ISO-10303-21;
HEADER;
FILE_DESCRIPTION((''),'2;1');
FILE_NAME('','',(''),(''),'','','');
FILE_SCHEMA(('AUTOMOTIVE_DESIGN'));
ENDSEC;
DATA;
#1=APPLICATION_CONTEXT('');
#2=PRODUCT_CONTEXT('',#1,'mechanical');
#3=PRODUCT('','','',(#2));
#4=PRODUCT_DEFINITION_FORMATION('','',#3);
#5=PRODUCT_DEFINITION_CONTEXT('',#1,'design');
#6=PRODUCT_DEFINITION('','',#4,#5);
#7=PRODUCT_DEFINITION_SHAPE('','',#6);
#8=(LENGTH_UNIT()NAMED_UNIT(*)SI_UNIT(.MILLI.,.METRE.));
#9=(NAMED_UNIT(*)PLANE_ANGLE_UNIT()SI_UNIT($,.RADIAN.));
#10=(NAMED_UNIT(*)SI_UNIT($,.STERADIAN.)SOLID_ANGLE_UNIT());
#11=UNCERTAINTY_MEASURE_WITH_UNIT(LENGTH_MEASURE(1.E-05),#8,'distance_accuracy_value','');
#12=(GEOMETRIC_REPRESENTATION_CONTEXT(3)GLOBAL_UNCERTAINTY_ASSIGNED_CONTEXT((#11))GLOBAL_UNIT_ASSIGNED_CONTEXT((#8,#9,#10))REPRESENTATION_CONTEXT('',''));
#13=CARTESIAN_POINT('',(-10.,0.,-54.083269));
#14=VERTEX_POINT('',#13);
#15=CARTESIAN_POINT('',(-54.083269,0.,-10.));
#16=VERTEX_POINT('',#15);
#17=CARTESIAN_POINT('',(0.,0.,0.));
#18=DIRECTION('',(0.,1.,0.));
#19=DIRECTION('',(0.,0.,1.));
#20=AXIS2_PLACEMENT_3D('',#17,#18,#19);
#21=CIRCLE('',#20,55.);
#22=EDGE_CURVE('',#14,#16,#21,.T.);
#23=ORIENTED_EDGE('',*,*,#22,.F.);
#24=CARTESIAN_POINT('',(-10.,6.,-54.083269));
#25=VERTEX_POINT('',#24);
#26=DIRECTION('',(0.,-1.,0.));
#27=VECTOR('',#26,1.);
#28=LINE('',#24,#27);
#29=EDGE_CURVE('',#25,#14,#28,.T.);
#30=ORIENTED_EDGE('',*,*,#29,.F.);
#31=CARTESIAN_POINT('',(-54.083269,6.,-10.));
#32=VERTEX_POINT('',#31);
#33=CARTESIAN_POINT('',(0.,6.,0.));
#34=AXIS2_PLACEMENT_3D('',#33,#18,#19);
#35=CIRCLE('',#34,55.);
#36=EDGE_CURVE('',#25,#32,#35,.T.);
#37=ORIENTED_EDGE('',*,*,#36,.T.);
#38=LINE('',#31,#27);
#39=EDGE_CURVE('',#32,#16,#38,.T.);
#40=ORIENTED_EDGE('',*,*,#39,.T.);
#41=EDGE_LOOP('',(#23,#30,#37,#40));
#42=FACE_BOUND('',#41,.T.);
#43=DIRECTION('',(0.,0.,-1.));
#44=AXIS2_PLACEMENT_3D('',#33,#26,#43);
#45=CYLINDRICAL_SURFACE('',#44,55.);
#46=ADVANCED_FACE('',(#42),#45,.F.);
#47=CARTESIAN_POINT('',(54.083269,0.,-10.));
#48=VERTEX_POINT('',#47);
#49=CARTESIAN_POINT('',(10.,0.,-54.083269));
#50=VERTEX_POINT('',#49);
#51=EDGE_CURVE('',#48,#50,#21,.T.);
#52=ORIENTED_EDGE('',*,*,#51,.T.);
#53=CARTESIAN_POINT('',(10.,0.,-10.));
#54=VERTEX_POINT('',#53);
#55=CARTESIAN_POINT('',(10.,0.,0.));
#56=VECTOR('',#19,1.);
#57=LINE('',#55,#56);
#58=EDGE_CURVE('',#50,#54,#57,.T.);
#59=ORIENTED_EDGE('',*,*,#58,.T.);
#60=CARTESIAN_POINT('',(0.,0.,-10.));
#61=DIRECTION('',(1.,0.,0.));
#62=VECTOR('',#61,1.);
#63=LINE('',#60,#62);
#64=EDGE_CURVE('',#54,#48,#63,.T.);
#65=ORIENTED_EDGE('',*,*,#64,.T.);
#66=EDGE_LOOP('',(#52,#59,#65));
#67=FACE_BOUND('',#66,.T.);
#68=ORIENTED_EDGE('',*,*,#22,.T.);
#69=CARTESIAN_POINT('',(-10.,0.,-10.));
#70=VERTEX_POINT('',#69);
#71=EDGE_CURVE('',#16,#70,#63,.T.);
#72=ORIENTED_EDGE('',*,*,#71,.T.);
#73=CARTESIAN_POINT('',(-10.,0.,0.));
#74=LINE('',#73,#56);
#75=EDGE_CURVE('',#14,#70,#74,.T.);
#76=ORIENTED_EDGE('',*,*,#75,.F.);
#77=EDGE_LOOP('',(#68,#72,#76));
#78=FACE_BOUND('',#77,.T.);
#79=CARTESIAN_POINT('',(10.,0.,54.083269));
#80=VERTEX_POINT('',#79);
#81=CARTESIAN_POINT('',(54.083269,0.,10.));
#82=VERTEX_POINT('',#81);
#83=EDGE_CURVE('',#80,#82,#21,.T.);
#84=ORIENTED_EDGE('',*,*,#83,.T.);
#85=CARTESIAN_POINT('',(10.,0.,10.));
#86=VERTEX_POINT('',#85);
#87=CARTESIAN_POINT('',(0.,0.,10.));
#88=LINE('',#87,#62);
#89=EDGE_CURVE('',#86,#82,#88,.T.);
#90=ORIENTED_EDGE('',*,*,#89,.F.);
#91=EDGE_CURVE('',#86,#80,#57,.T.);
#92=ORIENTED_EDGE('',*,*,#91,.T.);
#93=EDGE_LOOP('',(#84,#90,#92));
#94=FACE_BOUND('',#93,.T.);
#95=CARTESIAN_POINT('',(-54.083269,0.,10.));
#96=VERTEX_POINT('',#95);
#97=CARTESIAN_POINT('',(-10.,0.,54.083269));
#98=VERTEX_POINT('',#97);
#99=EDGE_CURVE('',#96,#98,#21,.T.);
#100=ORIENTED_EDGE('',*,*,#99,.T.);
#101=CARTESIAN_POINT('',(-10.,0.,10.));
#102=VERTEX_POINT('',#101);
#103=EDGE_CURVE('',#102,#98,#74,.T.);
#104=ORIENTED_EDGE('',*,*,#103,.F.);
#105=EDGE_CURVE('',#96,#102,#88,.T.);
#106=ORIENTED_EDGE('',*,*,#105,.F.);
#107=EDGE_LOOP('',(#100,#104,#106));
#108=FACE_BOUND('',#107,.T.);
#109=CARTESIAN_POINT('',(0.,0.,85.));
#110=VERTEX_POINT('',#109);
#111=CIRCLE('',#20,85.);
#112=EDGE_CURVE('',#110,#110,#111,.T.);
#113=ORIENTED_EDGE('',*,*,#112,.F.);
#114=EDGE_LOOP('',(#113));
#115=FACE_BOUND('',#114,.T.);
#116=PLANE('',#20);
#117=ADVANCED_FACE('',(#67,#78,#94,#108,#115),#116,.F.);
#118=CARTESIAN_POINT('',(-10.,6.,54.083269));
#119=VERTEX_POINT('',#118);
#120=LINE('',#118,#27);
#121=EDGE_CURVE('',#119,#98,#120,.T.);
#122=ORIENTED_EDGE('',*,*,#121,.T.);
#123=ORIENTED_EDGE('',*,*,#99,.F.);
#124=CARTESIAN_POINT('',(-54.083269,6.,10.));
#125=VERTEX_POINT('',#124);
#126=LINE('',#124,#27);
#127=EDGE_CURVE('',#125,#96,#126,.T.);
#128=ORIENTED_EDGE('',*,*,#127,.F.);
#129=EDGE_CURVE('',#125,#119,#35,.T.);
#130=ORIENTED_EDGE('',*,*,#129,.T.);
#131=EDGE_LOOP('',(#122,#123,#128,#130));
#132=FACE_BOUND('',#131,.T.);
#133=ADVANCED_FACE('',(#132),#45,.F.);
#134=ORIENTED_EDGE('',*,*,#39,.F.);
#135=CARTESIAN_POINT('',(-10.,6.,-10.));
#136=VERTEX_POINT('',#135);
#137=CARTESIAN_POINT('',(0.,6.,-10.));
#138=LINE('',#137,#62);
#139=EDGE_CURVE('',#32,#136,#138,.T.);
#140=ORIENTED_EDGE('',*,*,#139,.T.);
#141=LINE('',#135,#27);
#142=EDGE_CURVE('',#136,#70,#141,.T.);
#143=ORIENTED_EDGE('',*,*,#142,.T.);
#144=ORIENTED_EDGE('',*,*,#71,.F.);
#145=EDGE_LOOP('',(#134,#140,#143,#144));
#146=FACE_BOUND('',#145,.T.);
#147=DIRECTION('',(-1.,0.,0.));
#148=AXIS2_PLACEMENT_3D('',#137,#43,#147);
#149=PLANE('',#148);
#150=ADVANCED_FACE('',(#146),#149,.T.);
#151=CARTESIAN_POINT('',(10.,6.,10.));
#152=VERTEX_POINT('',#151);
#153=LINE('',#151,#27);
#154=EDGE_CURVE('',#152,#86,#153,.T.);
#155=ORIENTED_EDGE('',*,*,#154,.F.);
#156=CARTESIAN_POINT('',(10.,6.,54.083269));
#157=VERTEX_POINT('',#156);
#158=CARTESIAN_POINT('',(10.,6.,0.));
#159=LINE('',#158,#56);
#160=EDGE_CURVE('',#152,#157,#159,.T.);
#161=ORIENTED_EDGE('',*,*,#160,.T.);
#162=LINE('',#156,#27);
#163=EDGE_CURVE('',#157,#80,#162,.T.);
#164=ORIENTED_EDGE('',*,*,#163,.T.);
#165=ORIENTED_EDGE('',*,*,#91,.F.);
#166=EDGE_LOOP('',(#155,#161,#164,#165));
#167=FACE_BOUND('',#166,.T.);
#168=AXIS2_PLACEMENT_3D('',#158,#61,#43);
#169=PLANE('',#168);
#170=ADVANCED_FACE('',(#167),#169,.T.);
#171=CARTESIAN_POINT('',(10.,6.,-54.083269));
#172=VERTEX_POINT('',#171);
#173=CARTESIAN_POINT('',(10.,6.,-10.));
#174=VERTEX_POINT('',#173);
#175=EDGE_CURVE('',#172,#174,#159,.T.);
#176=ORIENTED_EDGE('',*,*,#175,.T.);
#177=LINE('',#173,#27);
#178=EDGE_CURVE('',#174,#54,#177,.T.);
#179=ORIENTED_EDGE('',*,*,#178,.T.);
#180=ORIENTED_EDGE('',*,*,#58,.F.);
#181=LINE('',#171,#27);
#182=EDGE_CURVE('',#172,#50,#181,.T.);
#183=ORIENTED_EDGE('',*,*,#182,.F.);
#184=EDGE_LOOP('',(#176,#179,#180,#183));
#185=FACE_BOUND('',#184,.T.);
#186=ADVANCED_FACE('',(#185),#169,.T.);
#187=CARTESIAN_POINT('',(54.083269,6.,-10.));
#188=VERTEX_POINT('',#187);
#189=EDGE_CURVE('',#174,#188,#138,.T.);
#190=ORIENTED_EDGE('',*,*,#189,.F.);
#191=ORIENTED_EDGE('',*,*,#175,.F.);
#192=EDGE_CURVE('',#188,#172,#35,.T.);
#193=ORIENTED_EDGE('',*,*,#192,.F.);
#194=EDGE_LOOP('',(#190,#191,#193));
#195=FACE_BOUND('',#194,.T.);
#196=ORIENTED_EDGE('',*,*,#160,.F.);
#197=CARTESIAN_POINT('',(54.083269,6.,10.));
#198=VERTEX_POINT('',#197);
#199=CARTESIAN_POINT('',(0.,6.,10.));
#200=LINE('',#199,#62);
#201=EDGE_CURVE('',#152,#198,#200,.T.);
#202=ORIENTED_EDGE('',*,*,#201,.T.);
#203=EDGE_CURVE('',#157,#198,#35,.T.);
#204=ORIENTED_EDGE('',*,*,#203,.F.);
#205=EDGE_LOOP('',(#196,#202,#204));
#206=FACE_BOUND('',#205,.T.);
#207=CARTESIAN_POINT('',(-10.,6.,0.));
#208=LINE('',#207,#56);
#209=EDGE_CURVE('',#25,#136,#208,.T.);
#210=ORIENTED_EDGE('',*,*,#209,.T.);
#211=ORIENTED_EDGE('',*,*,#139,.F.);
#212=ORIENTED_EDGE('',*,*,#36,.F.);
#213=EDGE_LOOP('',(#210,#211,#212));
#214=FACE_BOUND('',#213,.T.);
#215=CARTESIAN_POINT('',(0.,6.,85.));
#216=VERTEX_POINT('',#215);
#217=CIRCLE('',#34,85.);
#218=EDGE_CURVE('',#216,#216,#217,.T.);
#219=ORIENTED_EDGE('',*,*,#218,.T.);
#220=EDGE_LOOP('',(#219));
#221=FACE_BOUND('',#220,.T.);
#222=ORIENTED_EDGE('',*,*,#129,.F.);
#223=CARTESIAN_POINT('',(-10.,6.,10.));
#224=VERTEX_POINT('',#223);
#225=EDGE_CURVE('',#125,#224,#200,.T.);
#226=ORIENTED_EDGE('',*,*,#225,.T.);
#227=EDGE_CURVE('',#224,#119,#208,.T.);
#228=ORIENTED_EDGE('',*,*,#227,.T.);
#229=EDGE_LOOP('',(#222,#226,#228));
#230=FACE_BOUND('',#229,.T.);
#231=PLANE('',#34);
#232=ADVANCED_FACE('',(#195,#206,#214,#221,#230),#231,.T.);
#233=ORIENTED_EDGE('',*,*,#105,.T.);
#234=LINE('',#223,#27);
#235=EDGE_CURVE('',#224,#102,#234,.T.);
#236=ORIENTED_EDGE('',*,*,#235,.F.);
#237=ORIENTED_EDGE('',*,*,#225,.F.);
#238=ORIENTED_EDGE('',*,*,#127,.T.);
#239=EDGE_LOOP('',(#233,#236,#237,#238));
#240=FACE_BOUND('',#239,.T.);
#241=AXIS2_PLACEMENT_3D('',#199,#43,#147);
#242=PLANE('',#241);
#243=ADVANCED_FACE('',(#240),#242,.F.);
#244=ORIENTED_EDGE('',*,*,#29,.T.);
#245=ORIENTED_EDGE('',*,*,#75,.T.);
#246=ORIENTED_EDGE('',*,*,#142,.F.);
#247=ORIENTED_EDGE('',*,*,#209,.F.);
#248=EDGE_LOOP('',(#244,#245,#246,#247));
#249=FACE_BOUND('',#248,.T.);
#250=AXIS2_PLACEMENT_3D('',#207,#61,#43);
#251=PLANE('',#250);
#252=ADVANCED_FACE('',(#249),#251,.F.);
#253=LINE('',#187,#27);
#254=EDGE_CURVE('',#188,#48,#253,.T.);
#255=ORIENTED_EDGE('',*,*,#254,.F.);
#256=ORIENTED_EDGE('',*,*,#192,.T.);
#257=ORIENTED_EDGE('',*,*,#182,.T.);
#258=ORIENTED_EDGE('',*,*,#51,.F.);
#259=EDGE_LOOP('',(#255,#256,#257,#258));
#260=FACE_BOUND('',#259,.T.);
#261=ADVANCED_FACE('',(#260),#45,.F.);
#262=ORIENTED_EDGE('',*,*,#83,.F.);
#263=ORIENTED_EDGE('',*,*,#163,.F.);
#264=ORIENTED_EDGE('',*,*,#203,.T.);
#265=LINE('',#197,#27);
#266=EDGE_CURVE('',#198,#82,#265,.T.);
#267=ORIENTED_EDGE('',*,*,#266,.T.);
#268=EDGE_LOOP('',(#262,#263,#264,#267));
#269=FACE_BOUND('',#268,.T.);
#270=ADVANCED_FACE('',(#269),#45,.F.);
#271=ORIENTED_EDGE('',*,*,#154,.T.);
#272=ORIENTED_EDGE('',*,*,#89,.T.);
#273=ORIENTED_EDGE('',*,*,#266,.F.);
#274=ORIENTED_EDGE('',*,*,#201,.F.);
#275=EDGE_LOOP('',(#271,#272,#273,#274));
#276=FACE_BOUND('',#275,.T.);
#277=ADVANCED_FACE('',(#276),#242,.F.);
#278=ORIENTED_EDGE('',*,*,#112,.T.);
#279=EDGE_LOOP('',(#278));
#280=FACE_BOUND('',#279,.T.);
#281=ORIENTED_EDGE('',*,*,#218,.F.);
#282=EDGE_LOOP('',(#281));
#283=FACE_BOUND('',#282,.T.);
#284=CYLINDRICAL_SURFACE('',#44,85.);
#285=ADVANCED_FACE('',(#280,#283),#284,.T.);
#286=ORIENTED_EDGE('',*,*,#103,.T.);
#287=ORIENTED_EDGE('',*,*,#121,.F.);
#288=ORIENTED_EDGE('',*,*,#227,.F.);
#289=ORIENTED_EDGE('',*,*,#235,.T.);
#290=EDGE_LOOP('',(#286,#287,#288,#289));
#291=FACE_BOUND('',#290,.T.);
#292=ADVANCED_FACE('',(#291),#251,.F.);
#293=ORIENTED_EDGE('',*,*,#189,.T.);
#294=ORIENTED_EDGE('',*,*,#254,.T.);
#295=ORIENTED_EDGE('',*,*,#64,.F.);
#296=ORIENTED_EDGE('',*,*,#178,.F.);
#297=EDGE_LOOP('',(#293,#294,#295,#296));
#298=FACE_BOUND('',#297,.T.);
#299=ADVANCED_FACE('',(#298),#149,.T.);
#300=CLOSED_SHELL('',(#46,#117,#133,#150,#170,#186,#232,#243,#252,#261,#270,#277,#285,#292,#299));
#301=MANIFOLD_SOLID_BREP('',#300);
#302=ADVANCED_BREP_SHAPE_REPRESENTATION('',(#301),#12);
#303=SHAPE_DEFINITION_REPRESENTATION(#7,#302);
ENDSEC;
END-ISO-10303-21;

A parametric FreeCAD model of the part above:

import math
import FreeCAD as App
import Part
import Sketcher
from FreeCAD import Vector

doc = App.newDocument("Part")
body = doc.addObject("PartDesign::Body", "Body")

# Sketch on XZ plane
sketch1 = doc.addObject("Sketcher::SketchObject", "Sketch")
body.addObject(sketch1)
sketch1.AttachmentSupport = (doc.XZ_Plane, [""])
sketch1.MapMode = "FlatFace"
sketch1.addGeometry(Part.Circle(Vector(0, 0, 0), Vector(0, 0, 1), 85), False)
sketch1.addGeometry(Part.ArcOfCircle(Part.Circle(Vector(0, 0, 0), Vector(0, 0, 1), 55), math.radians(-169.524318), math.radians(-100.475682)), False)
sketch1.addGeometry(Part.LineSegment(Vector(-10, -54.083269, 0), Vector(-10, -10, 0)), False)
sketch1.addGeometry(Part.LineSegment(Vector(-10, -10, 0), Vector(-54.083269, -10, 0)), False)
sketch1.addGeometry(Part.ArcOfCircle(Part.Circle(Vector(0, 0, 0), Vector(0, 0, 1), 55), math.radians(100.475682), math.radians(169.524318)), False)
sketch1.addGeometry(Part.LineSegment(Vector(-54.083269, 10, 0), Vector(-10, 10, 0)), False)
sketch1.addGeometry(Part.LineSegment(Vector(-10, 10, 0), Vector(-10, 54.083269, 0)), False)
sketch1.addGeometry(Part.ArcOfCircle(Part.Circle(Vector(0, 0, 0), Vector(0, 0, 1), 55), math.radians(-79.524318), math.radians(-10.475682)), False)
sketch1.addGeometry(Part.LineSegment(Vector(54.083269, -10, 0), Vector(10, -10, 0)), False)
sketch1.addGeometry(Part.LineSegment(Vector(10, -10, 0), Vector(10, -54.083269, 0)), False)
sketch1.addGeometry(Part.ArcOfCircle(Part.Circle(Vector(0, 0, 0), Vector(0, 0, 1), 55), math.radians(10.475682), math.radians(79.524318)), False)
sketch1.addGeometry(Part.LineSegment(Vector(10, 54.083269, 0), Vector(10, 10, 0)), False)
sketch1.addGeometry(Part.LineSegment(Vector(10, 10, 0), Vector(54.083269, 10, 0)), False)
sketch1.addConstraint(Sketcher.Constraint("Coincident", 1, 2, 2, 1))
sketch1.addConstraint(Sketcher.Constraint("Coincident", 2, 2, 3, 1))
sketch1.addConstraint(Sketcher.Constraint("Coincident", 3, 2, 1, 1))
sketch1.addConstraint(Sketcher.Constraint("Coincident", 4, 2, 5, 1))
sketch1.addConstraint(Sketcher.Constraint("Coincident", 5, 2, 6, 1))
sketch1.addConstraint(Sketcher.Constraint("Coincident", 6, 2, 4, 1))
sketch1.addConstraint(Sketcher.Constraint("Coincident", 7, 2, 8, 1))
sketch1.addConstraint(Sketcher.Constraint("Coincident", 8, 2, 9, 1))
sketch1.addConstraint(Sketcher.Constraint("Coincident", 9, 2, 7, 1))
sketch1.addConstraint(Sketcher.Constraint("Coincident", 10, 2, 11, 1))
sketch1.addConstraint(Sketcher.Constraint("Coincident", 11, 2, 12, 1))
sketch1.addConstraint(Sketcher.Constraint("Coincident", 12, 2, 10, 1))
sketch1.addConstraint(Sketcher.Constraint("Vertical", 2))
sketch1.addConstraint(Sketcher.Constraint("Horizontal", 3))
sketch1.addConstraint(Sketcher.Constraint("Horizontal", 5))
sketch1.addConstraint(Sketcher.Constraint("Vertical", 6))
sketch1.addConstraint(Sketcher.Constraint("Horizontal", 8))
sketch1.addConstraint(Sketcher.Constraint("Vertical", 9))
sketch1.addConstraint(Sketcher.Constraint("Vertical", 11))
sketch1.addConstraint(Sketcher.Constraint("Horizontal", 12))
sketch1.addConstraint(Sketcher.Constraint("Coincident", 0, 3, -1, 1))
sketch1.addConstraint(Sketcher.Constraint("Coincident", 1, 3, -1, 1))
sketch1.addConstraint(Sketcher.Constraint("Coincident", 4, 3, -1, 1))
sketch1.addConstraint(Sketcher.Constraint("Coincident", 7, 3, -1, 1))
sketch1.addConstraint(Sketcher.Constraint("Coincident", 10, 3, -1, 1))
sketch1.addConstraint(Sketcher.Constraint("Equal", 1, 4))
sketch1.addConstraint(Sketcher.Constraint("Equal", 4, 7))
sketch1.addConstraint(Sketcher.Constraint("Equal", 7, 10))
sketch1.addConstraint(Sketcher.Constraint("Symmetric", 5, 2, 8, 2, -1, 1))
sketch1.addConstraint(Sketcher.Constraint("Symmetric", 2, 2, 11, 2, -1, 1))
sketch1.addConstraint(Sketcher.Constraint("Symmetric", 2, 2, 8, 2, -2))
sketch1.addConstraint(Sketcher.Constraint("Equal", 12, 2))
sketch1.addConstraint(Sketcher.Constraint("Diameter", 0, 170.0))
sketch1.addConstraint(Sketcher.Constraint("Radius", 1, 55.0))
sketch1.addConstraint(Sketcher.Constraint("DistanceX", 1, 2, -1, 1, 10.0))
pad1 = doc.addObject("PartDesign::Pad", "Pad")
body.addObject(pad1)
pad1.Profile = sketch1
pad1.Length = 6
pad1.Reversed = True

doc.recompute()
